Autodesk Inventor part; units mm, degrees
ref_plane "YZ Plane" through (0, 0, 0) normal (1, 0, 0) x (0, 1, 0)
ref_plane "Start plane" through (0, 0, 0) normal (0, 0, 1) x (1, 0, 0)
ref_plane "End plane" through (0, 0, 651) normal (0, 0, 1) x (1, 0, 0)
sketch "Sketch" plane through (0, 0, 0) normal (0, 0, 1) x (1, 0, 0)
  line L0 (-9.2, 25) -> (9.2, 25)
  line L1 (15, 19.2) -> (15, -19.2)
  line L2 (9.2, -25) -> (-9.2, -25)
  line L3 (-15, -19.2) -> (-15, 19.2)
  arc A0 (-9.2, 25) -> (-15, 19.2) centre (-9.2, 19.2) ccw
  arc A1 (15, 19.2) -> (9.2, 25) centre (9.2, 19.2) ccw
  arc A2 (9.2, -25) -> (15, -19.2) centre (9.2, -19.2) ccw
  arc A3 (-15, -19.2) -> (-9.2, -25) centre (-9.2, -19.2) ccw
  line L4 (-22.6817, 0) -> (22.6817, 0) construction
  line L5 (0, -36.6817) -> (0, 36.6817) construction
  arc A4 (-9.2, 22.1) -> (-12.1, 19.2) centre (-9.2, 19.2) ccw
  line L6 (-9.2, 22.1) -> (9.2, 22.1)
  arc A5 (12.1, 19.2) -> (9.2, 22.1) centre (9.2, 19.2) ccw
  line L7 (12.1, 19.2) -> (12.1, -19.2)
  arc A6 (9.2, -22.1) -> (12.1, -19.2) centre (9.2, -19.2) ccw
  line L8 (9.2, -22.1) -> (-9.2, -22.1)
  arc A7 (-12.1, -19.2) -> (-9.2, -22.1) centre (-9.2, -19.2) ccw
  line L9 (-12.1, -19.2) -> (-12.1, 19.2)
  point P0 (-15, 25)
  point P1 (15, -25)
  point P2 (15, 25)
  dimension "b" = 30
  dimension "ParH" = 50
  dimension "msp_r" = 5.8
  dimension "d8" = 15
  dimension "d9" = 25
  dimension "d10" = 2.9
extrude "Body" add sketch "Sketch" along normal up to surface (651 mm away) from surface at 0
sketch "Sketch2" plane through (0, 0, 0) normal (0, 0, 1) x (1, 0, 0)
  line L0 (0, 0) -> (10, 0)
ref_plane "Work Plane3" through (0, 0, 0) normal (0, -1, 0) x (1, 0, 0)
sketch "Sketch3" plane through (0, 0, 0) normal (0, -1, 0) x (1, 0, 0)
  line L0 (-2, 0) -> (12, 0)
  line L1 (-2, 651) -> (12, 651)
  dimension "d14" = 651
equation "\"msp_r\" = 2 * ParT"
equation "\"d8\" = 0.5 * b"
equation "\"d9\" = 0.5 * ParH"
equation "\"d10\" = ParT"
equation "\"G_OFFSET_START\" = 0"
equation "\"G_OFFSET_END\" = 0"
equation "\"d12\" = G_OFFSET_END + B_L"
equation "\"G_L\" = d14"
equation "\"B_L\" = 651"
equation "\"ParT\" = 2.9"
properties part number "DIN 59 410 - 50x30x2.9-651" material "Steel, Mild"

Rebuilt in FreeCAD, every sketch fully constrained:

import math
import FreeCAD as App
import Part
import Sketcher

doc = App.newDocument("Part")
body = doc.addObject("PartDesign::Body", "Body")

sketch1 = body.newObject("Sketcher::SketchObject", "Sketch")
sketch1.AttachmentSupport = (doc.getObject("XY_Plane"), [""])
sketch1.MapMode = "FlatFace"
sketch1.addGeometry([
    Part.LineSegment(App.Vector(9.2, 25, 0), App.Vector(-9.2, 25, 0)),
    Part.ArcOfCircle(Part.Circle(App.Vector(-9.2, 19.2, 0), App.Vector(0, 0, 1), 5.8), math.radians(90), math.radians(180)),
    Part.LineSegment(App.Vector(-15, 19.2, 0), App.Vector(-15, -19.2, 0)),
    Part.ArcOfCircle(Part.Circle(App.Vector(-9.2, -19.2, 0), App.Vector(0, 0, 1), 5.8), math.radians(180), math.radians(270)),
    Part.LineSegment(App.Vector(-9.2, -25, 0), App.Vector(9.2, -25, 0)),
    Part.ArcOfCircle(Part.Circle(App.Vector(9.2, -19.2, 0), App.Vector(0, 0, 1), 5.8), math.radians(-90), math.radians(0)),
    Part.LineSegment(App.Vector(15, -19.2, 0), App.Vector(15, 19.2, 0)),
    Part.ArcOfCircle(Part.Circle(App.Vector(9.2, 19.2, 0), App.Vector(0, 0, 1), 5.8), math.radians(0), math.radians(90)),
    Part.ArcOfCircle(Part.Circle(App.Vector(-9.2, 19.2, 0), App.Vector(0, 0, 1), 2.9), math.radians(90), math.radians(180)),
    Part.LineSegment(App.Vector(-9.2, 22.1, 0), App.Vector(9.2, 22.1, 0)),
    Part.ArcOfCircle(Part.Circle(App.Vector(9.2, 19.2, 0), App.Vector(0, 0, 1), 2.9), math.radians(0), math.radians(90)),
    Part.LineSegment(App.Vector(12.1, 19.2, 0), App.Vector(12.1, -19.2, 0)),
    Part.ArcOfCircle(Part.Circle(App.Vector(9.2, -19.2, 0), App.Vector(0, 0, 1), 2.9), math.radians(-90), math.radians(0)),
    Part.LineSegment(App.Vector(9.2, -22.1, 0), App.Vector(-9.2, -22.1, 0)),
    Part.ArcOfCircle(Part.Circle(App.Vector(-9.2, -19.2, 0), App.Vector(0, 0, 1), 2.9), math.radians(180), math.radians(270)),
    Part.LineSegment(App.Vector(-12.1, -19.2, 0), App.Vector(-12.1, 19.2, 0)),
], False)
sketch1.addConstraint([
    Sketcher.Constraint("Tangent", 0, 2, 1, 1),
    Sketcher.Constraint("Tangent", 1, 2, 2, 1),
    Sketcher.Constraint("Tangent", 2, 2, 3, 1),
    Sketcher.Constraint("Tangent", 3, 2, 4, 1),
    Sketcher.Constraint("Tangent", 4, 2, 5, 1),
    Sketcher.Constraint("Tangent", 5, 2, 6, 1),
    Sketcher.Constraint("Tangent", 6, 2, 7, 1),
    Sketcher.Constraint("Tangent", 7, 2, 0, 1),
    Sketcher.Constraint("Tangent", 8, 1, 9, 1),
    Sketcher.Constraint("Tangent", 9, 2, 10, 2),
    Sketcher.Constraint("Tangent", 10, 1, 11, 1),
    Sketcher.Constraint("Tangent", 11, 2, 12, 2),
    Sketcher.Constraint("Tangent", 12, 1, 13, 1),
    Sketcher.Constraint("Tangent", 13, 2, 14, 2),
    Sketcher.Constraint("Tangent", 14, 1, 15, 1),
    Sketcher.Constraint("Tangent", 15, 2, 8, 2),
    Sketcher.Constraint("Horizontal", 0),
    Sketcher.Constraint("Vertical", 2),
    Sketcher.Constraint("Horizontal", 4),
    Sketcher.Constraint("Vertical", 6),
    Sketcher.Constraint("Horizontal", 9),
    Sketcher.Constraint("Vertical", 11),
    Sketcher.Constraint("Horizontal", 13),
    Sketcher.Constraint("Vertical", 15),
    Sketcher.Constraint("Coincident", 8, 3, 1, 3),
    Sketcher.Constraint("Coincident", 10, 3, 7, 3),
    Sketcher.Constraint("Coincident", 12, 3, 5, 3),
    Sketcher.Constraint("Equal", 1, 3),
    Sketcher.Constraint("Equal", 3, 5),
    Sketcher.Constraint("Equal", 5, 7),
    Sketcher.Constraint("Equal", 12, 14),
    Sketcher.Constraint("Symmetric", 1, 3, 5, 3, -1, 1),
    Sketcher.Constraint("Radius", 1, 5.8),
    Sketcher.Constraint("Radius", 8, 2.9),
    Sketcher.Constraint("DistanceY", -1, 1, 0, 2, 25.0),
    Sketcher.Constraint("DistanceX", 1, 2, -1, 1, 15.0),
])
pad1 = body.newObject("PartDesign::Pad", "Pad")
pad1.Profile = sketch1
pad1.Length = 651

doc.recompute()
